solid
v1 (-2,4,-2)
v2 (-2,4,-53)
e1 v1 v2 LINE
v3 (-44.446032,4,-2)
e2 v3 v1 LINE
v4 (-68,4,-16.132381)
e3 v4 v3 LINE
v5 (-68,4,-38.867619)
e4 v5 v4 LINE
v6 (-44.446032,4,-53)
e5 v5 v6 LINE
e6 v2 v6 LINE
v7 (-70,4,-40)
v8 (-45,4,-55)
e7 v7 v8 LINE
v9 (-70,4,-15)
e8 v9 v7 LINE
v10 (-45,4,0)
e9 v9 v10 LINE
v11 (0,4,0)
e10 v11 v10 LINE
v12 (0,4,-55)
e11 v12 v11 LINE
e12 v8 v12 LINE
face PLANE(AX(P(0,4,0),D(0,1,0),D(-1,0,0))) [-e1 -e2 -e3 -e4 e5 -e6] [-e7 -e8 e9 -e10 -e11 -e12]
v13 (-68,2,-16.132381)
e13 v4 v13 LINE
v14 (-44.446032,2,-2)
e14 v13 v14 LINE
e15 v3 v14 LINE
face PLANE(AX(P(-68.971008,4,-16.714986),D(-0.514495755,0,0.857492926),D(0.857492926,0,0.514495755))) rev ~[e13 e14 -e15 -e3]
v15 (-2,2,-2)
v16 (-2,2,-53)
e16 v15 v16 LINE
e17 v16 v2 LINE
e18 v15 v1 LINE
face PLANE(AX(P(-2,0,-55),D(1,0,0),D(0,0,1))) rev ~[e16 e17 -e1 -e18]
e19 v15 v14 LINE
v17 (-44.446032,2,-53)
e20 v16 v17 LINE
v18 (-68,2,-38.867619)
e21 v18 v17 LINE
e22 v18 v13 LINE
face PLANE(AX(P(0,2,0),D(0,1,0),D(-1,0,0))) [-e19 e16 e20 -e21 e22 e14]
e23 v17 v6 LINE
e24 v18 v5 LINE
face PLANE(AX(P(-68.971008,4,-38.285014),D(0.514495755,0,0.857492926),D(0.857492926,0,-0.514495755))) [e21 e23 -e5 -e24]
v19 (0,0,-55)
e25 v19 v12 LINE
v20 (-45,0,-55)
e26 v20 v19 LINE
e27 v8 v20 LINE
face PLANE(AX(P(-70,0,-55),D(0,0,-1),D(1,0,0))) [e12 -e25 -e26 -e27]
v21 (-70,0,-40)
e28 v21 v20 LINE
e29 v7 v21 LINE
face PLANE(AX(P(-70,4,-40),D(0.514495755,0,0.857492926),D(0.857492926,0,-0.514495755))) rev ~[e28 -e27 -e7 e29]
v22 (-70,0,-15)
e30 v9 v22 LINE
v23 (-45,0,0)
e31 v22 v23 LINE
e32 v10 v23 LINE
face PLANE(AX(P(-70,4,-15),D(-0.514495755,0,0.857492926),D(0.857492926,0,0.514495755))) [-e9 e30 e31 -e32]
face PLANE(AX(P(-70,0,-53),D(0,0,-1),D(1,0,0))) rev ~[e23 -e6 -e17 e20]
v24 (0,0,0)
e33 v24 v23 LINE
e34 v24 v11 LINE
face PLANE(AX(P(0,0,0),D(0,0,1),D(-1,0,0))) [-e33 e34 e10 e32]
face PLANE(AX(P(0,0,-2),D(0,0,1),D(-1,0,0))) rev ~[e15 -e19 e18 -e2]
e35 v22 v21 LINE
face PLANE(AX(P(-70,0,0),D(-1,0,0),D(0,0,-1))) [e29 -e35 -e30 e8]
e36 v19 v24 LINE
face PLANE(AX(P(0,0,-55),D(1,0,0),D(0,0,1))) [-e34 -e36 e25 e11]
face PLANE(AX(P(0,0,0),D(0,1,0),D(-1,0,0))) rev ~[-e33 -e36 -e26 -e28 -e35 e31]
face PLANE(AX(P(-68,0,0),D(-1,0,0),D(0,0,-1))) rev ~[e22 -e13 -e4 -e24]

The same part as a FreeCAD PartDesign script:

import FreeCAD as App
import Part
import Sketcher
from FreeCAD import Vector
Q = App.Units.Quantity


def faces_at(feature, points):
    """Names of the faces that lie closest to the given points."""
    faces = feature.Shape.Faces
    near = lambda p: min(range(len(faces)), key=lambda i: faces[i].distToShape(Part.Vertex(*p))[0])
    return sorted({f"Face{near(p) + 1}" for p in points})

doc = App.newDocument("Part")
body = doc.addObject("PartDesign::Body", "Body")

# Sketch on XZ plane
sketch1 = body.newObject("Sketcher::SketchObject", "Sketch")
sketch1.AttachmentSupport = (doc.getObject("XZ_Plane"), [""])
sketch1.MapMode = "FlatFace"
sketch1.addGeometry(Part.LineSegment(Vector(-70, 0, 0), Vector(0, 0, 0)), False)
sketch1.addGeometry(Part.LineSegment(Vector(0, 0, 0), Vector(0, -55, 0)), False)
sketch1.addGeometry(Part.LineSegment(Vector(0, -55, 0), Vector(-70, -55, 0)), False)
sketch1.addGeometry(Part.LineSegment(Vector(-70, -55, 0), Vector(-70, 0, 0)), False)
sketch1.addConstraint(Sketcher.Constraint("Coincident", 0, 2, 1, 1))
sketch1.addConstraint(Sketcher.Constraint("Coincident", 1, 2, 2, 1))
sketch1.addConstraint(Sketcher.Constraint("Coincident", 2, 2, 3, 1))
sketch1.addConstraint(Sketcher.Constraint("Coincident", 3, 2, 0, 1))
sketch1.addConstraint(Sketcher.Constraint("Horizontal", 0))
sketch1.addConstraint(Sketcher.Constraint("Vertical", 1))
sketch1.addConstraint(Sketcher.Constraint("Horizontal", 2))
sketch1.addConstraint(Sketcher.Constraint("Vertical", 3))
sketch1.addConstraint(Sketcher.Constraint("Coincident", 0, 2, -1, 1))
sketch1.addConstraint(Sketcher.Constraint("DistanceX", 0, 1, 0, 2, Q("70 mm")))
sketch1.addConstraint(Sketcher.Constraint("DistanceY", 1, 2, 1, 1, Q("55 mm")))
pad1 = body.newObject("PartDesign::Pad", "Pad")
pad1.Profile = sketch1
pad1.Length = 4
pad1.Reversed = True

# Sketch on XZ plane
sketch2 = body.newObject("Sketcher::SketchObject", "Sketch001")
sketch2.AttachmentSupport = (doc.getObject("XZ_Plane"), [""])
sketch2.MapMode = "FlatFace"
sketch2.AttachmentOffset = App.Placement(Vector(0, 0, -4), App.Rotation())
sketch2.addGeometry(Part.LineSegment(Vector(-70, -15, 0), Vector(-70, 0, 0)), False)
sketch2.addGeometry(Part.LineSegment(Vector(-70, 0, 0), Vector(-45, 0, 0)), False)
sketch2.addGeometry(Part.LineSegment(Vector(-45, 0, 0), Vector(-70, -15, 0)), False)
sketch2.addGeometry(Part.LineSegment(Vector(-70, -55, 0), Vector(-70, -40, 0)), False)
sketch2.addGeometry(Part.LineSegment(Vector(-70, -40, 0), Vector(-45, -55, 0)), False)
sketch2.addGeometry(Part.LineSegment(Vector(-45, -55, 0), Vector(-70, -55, 0)), False)
sketch2.addConstraint(Sketcher.Constraint("Coincident", 0, 2, 1, 1))
sketch2.addConstraint(Sketcher.Constraint("Coincident", 1, 2, 2, 1))
sketch2.addConstraint(Sketcher.Constraint("Coincident", 2, 2, 0, 1))
sketch2.addConstraint(Sketcher.Constraint("Coincident", 3, 2, 4, 1))
sketch2.addConstraint(Sketcher.Constraint("Coincident", 4, 2, 5, 1))
sketch2.addConstraint(Sketcher.Constraint("Coincident", 5, 2, 3, 1))
sketch2.addConstraint(Sketcher.Constraint("Vertical", 0))
sketch2.addConstraint(Sketcher.Constraint("Horizontal", 1))
sketch2.addConstraint(Sketcher.Constraint("Vertical", 3))
sketch2.addConstraint(Sketcher.Constraint("Horizontal", 5))
sketch2.addConstraint(Sketcher.Constraint("PointOnObject", 0, 2, -1))
sketch2.addConstraint(Sketcher.Constraint("Vertical", 2, 2, 3, 2))
sketch2.addConstraint(Sketcher.Constraint("Vertical", 1, 2, 4, 2))
sketch2.addConstraint(Sketcher.Constraint("Equal", 0, 3))
sketch2.addConstraint(Sketcher.Constraint("DistanceX", 1, 1, 1, 2, Q("25 mm")))
sketch2.addConstraint(Sketcher.Constraint("DistanceY", 0, 1, 0, 2, Q("15 mm")))
sketch2.addConstraint(Sketcher.Constraint("DistanceY", 3, 2, 2, 2, Q("25 mm")))
sketch2.addConstraint(Sketcher.Constraint("DistanceX", 0, 2, -1, 1, Q("70 mm")))
pocket1 = body.newObject("PartDesign::Pocket", "Pocket")
pocket1.Profile = sketch2
pocket1.Length = 4
pocket1.Reversed = True
doc.recompute()

thickness = body.newObject("PartDesign::Thickness", "Thickness")
thickness.Base = (pocket1, faces_at(pocket1, [(-15, 4, -18.333)]))
thickness.Value = 2
thickness.Reversed = True
thickness.Join = "Intersection"

doc.recompute()
